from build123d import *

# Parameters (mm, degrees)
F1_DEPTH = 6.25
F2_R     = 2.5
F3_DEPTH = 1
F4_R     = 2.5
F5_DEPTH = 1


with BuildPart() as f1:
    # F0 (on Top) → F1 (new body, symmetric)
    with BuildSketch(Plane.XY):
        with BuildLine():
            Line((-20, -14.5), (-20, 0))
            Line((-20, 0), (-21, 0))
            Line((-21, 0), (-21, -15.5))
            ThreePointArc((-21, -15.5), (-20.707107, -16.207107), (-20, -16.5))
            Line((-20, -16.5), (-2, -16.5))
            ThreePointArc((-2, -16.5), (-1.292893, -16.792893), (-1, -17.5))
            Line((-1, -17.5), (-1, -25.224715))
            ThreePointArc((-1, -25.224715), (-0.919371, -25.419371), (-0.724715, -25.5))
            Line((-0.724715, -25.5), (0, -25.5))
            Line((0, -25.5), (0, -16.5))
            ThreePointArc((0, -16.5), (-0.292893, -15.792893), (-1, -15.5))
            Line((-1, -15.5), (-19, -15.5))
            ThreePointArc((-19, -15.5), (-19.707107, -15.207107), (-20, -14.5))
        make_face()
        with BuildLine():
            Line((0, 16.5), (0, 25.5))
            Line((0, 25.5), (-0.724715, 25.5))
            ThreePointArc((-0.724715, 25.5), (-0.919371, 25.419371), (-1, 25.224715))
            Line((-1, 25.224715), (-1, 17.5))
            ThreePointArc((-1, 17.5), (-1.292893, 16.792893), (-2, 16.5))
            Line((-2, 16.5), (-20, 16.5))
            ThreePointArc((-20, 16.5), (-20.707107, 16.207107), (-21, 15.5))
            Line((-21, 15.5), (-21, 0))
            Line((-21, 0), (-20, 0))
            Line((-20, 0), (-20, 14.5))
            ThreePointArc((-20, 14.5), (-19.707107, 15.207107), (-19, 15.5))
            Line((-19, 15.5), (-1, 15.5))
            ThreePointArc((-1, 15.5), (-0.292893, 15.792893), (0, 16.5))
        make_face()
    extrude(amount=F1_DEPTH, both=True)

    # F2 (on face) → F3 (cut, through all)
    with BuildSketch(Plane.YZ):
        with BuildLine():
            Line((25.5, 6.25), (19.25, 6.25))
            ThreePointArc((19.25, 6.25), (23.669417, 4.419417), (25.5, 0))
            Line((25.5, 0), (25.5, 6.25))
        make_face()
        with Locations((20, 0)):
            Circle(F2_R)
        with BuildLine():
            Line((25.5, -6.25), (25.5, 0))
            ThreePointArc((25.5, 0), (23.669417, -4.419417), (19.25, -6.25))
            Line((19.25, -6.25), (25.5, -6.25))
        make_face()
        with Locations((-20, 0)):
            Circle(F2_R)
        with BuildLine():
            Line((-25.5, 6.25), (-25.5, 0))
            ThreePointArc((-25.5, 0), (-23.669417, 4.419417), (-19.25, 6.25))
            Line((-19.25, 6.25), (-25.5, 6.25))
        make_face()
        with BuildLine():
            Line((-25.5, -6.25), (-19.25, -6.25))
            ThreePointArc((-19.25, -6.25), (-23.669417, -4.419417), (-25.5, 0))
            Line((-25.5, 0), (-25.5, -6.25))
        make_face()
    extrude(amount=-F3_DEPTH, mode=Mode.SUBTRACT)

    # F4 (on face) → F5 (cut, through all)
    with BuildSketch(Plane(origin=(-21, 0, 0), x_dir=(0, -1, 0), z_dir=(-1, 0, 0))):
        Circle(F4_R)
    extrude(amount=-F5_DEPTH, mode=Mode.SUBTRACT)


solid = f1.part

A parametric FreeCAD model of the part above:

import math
import FreeCAD as App
import Part
import Sketcher

V = App.Vector
Q = App.Units.Quantity

doc = App.newDocument("Part")
body = doc.addObject("PartDesign::Body", "Body")

# Sketch on XY plane
sketch1 = body.newObject("Sketcher::SketchObject", "Sketch")
sketch1.AttachmentSupport = (doc.getObject("XY_Plane"), [""])
sketch1.MapMode = "FlatFace"
sketch1.addGeometry(Part.LineSegment(V(-20, -14.5, 0), V(-20, 14.5, 0)), False)
sketch1.addGeometry(Part.ArcOfCircle(Part.Circle(V(-19, 14.5, 0), V(0, 0, 1), 1), math.radians(90), math.radians(180)), False)
sketch1.addGeometry(Part.LineSegment(V(-19, 15.5, 0), V(-1, 15.5, 0)), False)
sketch1.addGeometry(Part.ArcOfCircle(Part.Circle(V(-1, 16.5, 0), V(0, 0, 1), 1), math.radians(-90), math.radians(0)), False)
sketch1.addGeometry(Part.LineSegment(V(0, 16.5, 0), V(0, 25.5, 0)), False)
sketch1.addGeometry(Part.LineSegment(V(0, 25.5, 0), V(-0.72, 25.5, 0)), False)
sketch1.addGeometry(Part.ArcOfCircle(Part.Circle(V(-0.72, 25.22, 0), V(0, 0, 1), 0.28), math.radians(90), math.radians(180)), False)
sketch1.addGeometry(Part.LineSegment(V(-1, 25.22, 0), V(-1, 17.5, 0)), False)
sketch1.addGeometry(Part.ArcOfCircle(Part.Circle(V(-2, 17.5, 0), V(0, 0, 1), 1), math.radians(-90), math.radians(0)), False)
sketch1.addGeometry(Part.LineSegment(V(-2, 16.5, 0), V(-20, 16.5, 0)), False)
sketch1.addGeometry(Part.ArcOfCircle(Part.Circle(V(-20, 15.5, 0), V(0, 0, 1), 1), math.radians(90), math.radians(180)), False)
sketch1.addGeometry(Part.LineSegment(V(-21, 15.5, 0), V(-21, -15.5, 0)), False)
sketch1.addGeometry(Part.ArcOfCircle(Part.Circle(V(-20, -15.5, 0), V(0, 0, 1), 1), math.radians(180), math.radians(270)), False)
sketch1.addGeometry(Part.LineSegment(V(-20, -16.5, 0), V(-2, -16.5, 0)), False)
sketch1.addGeometry(Part.ArcOfCircle(Part.Circle(V(-2, -17.5, 0), V(0, 0, 1), 1), math.radians(0), math.radians(90)), False)
sketch1.addGeometry(Part.LineSegment(V(-1, -17.5, 0), V(-1, -25.22, 0)), False)
sketch1.addGeometry(Part.ArcOfCircle(Part.Circle(V(-0.72, -25.22, 0), V(0, 0, 1), 0.28), math.radians(180), math.radians(270)), False)
sketch1.addGeometry(Part.LineSegment(V(-0.72, -25.5, 0), V(0, -25.5, 0)), False)
sketch1.addGeometry(Part.LineSegment(V(0, -25.5, 0), V(0, -16.5, 0)), False)
sketch1.addGeometry(Part.ArcOfCircle(Part.Circle(V(-1, -16.5, 0), V(0, 0, 1), 1), math.radians(0), math.radians(90)), False)
sketch1.addGeometry(Part.LineSegment(V(-1, -15.5, 0), V(-19, -15.5, 0)), False)
sketch1.addGeometry(Part.ArcOfCircle(Part.Circle(V(-19, -14.5, 0), V(0, 0, 1), 1), math.radians(180), math.radians(270)), False)
sketch1.addConstraint(Sketcher.Constraint("Tangent", 0, 2, 1, 2))
sketch1.addConstraint(Sketcher.Constraint("Tangent", 1, 1, 2, 1))
sketch1.addConstraint(Sketcher.Constraint("Tangent", 2, 2, 3, 1))
sketch1.addConstraint(Sketcher.Constraint("Tangent", 3, 2, 4, 1))
sketch1.addConstraint(Sketcher.Constraint("Coincident", 4, 2, 5, 1))
sketch1.addConstraint(Sketcher.Constraint("Tangent", 5, 2, 6, 1))
sketch1.addConstraint(Sketcher.Constraint("Tangent", 6, 2, 7, 1))
sketch1.addConstraint(Sketcher.Constraint("Tangent", 7, 2, 8, 2))
sketch1.addConstraint(Sketcher.Constraint("Tangent", 8, 1, 9, 1))
sketch1.addConstraint(Sketcher.Constraint("Tangent", 9, 2, 10, 1))
sketch1.addConstraint(Sketcher.Constraint("Tangent", 10, 2, 11, 1))
sketch1.addConstraint(Sketcher.Constraint("Tangent", 11, 2, 12, 1))
sketch1.addConstraint(Sketcher.Constraint("Tangent", 12, 2, 13, 1))
sketch1.addConstraint(Sketcher.Constraint("Tangent", 13, 2, 14, 2))
sketch1.addConstraint(Sketcher.Constraint("Tangent", 14, 1, 15, 1))
sketch1.addConstraint(Sketcher.Constraint("Tangent", 15, 2, 16, 1))
sketch1.addConstraint(Sketcher.Constraint("Tangent", 16, 2, 17, 1))
sketch1.addConstraint(Sketcher.Constraint("Coincident", 17, 2, 18, 1))
sketch1.addConstraint(Sketcher.Constraint("Tangent", 18, 2, 19, 1))
sketch1.addConstraint(Sketcher.Constraint("Tangent", 19, 2, 20, 1))
sketch1.addConstraint(Sketcher.Constraint("Tangent", 20, 2, 21, 2))
sketch1.addConstraint(Sketcher.Constraint("Tangent", 21, 1, 0, 1))
sketch1.addConstraint(Sketcher.Constraint("Vertical", 0))
sketch1.addConstraint(Sketcher.Constraint("Horizontal", 2))
sketch1.addConstraint(Sketcher.Constraint("Vertical", 4))
sketch1.addConstraint(Sketcher.Constraint("Horizontal", 5))
sketch1.addConstraint(Sketcher.Constraint("Vertical", 7))
sketch1.addConstraint(Sketcher.Constraint("Horizontal", 9))
sketch1.addConstraint(Sketcher.Constraint("Vertical", 11))
sketch1.addConstraint(Sketcher.Constraint("Horizontal", 13))
sketch1.addConstraint(Sketcher.Constraint("Vertical", 15))
sketch1.addConstraint(Sketcher.Constraint("Horizontal", 17))
sketch1.addConstraint(Sketcher.Constraint("Vertical", 18))
sketch1.addConstraint(Sketcher.Constraint("Horizontal", 20))
sketch1.addConstraint(Sketcher.Constraint("Equal", 1, 3))
sketch1.addConstraint(Sketcher.Constraint("Equal", 3, 8))
sketch1.addConstraint(Sketcher.Constraint("Equal", 8, 10))
sketch1.addConstraint(Sketcher.Constraint("Equal", 10, 12))
sketch1.addConstraint(Sketcher.Constraint("Equal", 12, 14))
sketch1.addConstraint(Sketcher.Constraint("Equal", 6, 16))
sketch1.addConstraint(Sketcher.Constraint("Equal", 14, 19))
sketch1.addConstraint(Sketcher.Constraint("Equal", 19, 21))
sketch1.addConstraint(Sketcher.Constraint("Symmetric", 4, 2, 17, 2, -1, 1))
sketch1.addConstraint(Sketcher.Constraint("Symmetric", 8, 3, 14, 3, -1))
sketch1.addConstraint(Sketcher.Constraint("Symmetric", 3, 3, 19, 3, -1))
sketch1.addConstraint(Sketcher.Constraint("Horizontal", 10, 3, 1, 1))
sketch1.addConstraint(Sketcher.Constraint("Vertical", 12, 3, 0, 2))
sketch1.addConstraint(Sketcher.Constraint("Vertical", 2, 2, 6, 2))
sketch1.addConstraint(Sketcher.Constraint("Radius", 1, Q("0.999999 mm")))
sketch1.addConstraint(Sketcher.Constraint("DistanceX", 2, 1, 2, 2, Q("18 mm")))
sketch1.addConstraint(Sketcher.Constraint("DistanceY", 0, 1, 0, 2, Q("29 mm")))
sketch1.addConstraint(Sketcher.Constraint("DistanceY", 4, 1, 4, 2, Q("9 mm")))
sketch1.addConstraint(Sketcher.Constraint("Radius", 6, Q("0.275285 mm")))
pad1 = body.newObject("PartDesign::Pad", "Pad")
pad1.Profile = sketch1
pad1.Length = 12.5
pad1.Midplane = True

# Sketch on YZ plane
sketch2 = body.newObject("Sketcher::SketchObject", "Sketch001")
sketch2.AttachmentSupport = (doc.getObject("YZ_Plane"), [""])
sketch2.MapMode = "FlatFace"
sketch2.addGeometry(Part.LineSegment(V(25.5, 6.2, 0), V(19.2, 6.2, 0)), False)
sketch2.addGeometry(Part.ArcOfCircle(Part.Circle(V(19.2, 0, 0), V(0, 0, 1), 6.3), math.radians(0), math.radians(90)), False)
sketch2.addGeometry(Part.LineSegment(V(25.5, 0, 0), V(25.5, 6.2, 0)), False)
sketch2.addGeometry(Part.Circle(V(20, 0, 0), V(0, 0, 1), 2.5), False)
sketch2.addGeometry(Part.LineSegment(V(25.5, -6.2, 0), V(25.5, 0, 0)), False)
sketch2.addGeometry(Part.ArcOfCircle(Part.Circle(V(19.2, 0, 0), V(0, 0, 1), 6.3), math.radians(-90), math.radians(0)), False)
sketch2.addGeometry(Part.LineSegment(V(19.2, -6.2, 0), V(25.5, -6.2, 0)), False)
sketch2.addGeometry(Part.Circle(V(-20, 0, 0), V(0, 0, 1), 2.5), False)
sketch2.addGeometry(Part.LineSegment(V(-25.5, 6.2, 0), V(-25.5, 0, 0)), False)
sketch2.addGeometry(Part.ArcOfCircle(Part.Circle(V(-19.2, 0, 0), V(0, 0, 1), 6.3), math.radians(90), math.radians(180)), False)
sketch2.addGeometry(Part.LineSegment(V(-19.2, 6.2, 0), V(-25.5, 6.2, 0)), False)
sketch2.addGeometry(Part.LineSegment(V(-25.5, -6.2, 0), V(-19.2, -6.2, 0)), False)
sketch2.addGeometry(Part.ArcOfCircle(Part.Circle(V(-19.2, 0, 0), V(0, 0, 1), 6.3), math.radians(-180), math.radians(-90)), False)
sketch2.addGeometry(Part.LineSegment(V(-25.5, 0, 0), V(-25.5, -6.2, 0)), False)
sketch2.addConstraint(Sketcher.Constraint("Tangent", 0, 2, 1, 2))
sketch2.addConstraint(Sketcher.Constraint("Tangent", 1, 1, 2, 1))
sketch2.addConstraint(Sketcher.Constraint("Coincident", 2, 2, 0, 1))
sketch2.addConstraint(Sketcher.Constraint("Tangent", 4, 2, 5, 2))
sketch2.addConstraint(Sketcher.Constraint("Tangent", 5, 1, 6, 1))
sketch2.addConstraint(Sketcher.Constraint("Coincident", 6, 2, 4, 1))
sketch2.addConstraint(Sketcher.Constraint("Tangent", 8, 2, 9, 2))
sketch2.addConstraint(Sketcher.Constraint("Tangent", 9, 1, 10, 1))
sketch2.addConstraint(Sketcher.Constraint("Coincident", 10, 2, 8, 1))
sketch2.addConstraint(Sketcher.Constraint("Tangent", 11, 2, 12, 2))
sketch2.addConstraint(Sketcher.Constraint("Tangent", 12, 1, 13, 1))
sketch2.addConstraint(Sketcher.Constraint("Coincident", 13, 2, 11, 1))
sketch2.addConstraint(Sketcher.Constraint("Horizontal", 0))
sketch2.addConstraint(Sketcher.Constraint("Vertical", 2))
sketch2.addConstraint(Sketcher.Constraint("Vertical", 4))
sketch2.addConstraint(Sketcher.Constraint("Horizontal", 6))
sketch2.addConstraint(Sketcher.Constraint("Vertical", 8))
sketch2.addConstraint(Sketcher.Constraint("Horizontal", 10))
sketch2.addConstraint(Sketcher.Constraint("Horizontal", 11))
sketch2.addConstraint(Sketcher.Constraint("Vertical", 13))
sketch2.addConstraint(Sketcher.Constraint("Coincident", 5, 3, 1, 3))
sketch2.addConstraint(Sketcher.Constraint("Coincident", 12, 3, 9, 3))
sketch2.addConstraint(Sketcher.Constraint("Equal", 1, 5))
sketch2.addConstraint(Sketcher.Constraint("Equal", 3, 7))
sketch2.addConstraint(Sketcher.Constraint("Equal", 5, 9))
sketch2.addConstraint(Sketcher.Constraint("Equal", 9, 12))
sketch2.addConstraint(Sketcher.Constraint("Symmetric", 3, 3, 7, 3, -1, 1))
sketch2.addConstraint(Sketcher.Constraint("Symmetric", 1, 3, 9, 3, -1, 1))
sketch2.addConstraint(Sketcher.Constraint("PointOnObject", 1, 3, -1))
sketch2.addConstraint(Sketcher.Constraint("PointOnObject", 3, 3, -1))
sketch2.addConstraint(Sketcher.Constraint("Diameter", 3, Q("5 mm")))
sketch2.addConstraint(Sketcher.Constraint("Radius", 1, Q("6.250001 mm")))
sketch2.addConstraint(Sketcher.Constraint("DistanceX", -1, 1, 3, 3, Q("20 mm")))
sketch2.addConstraint(Sketcher.Constraint("DistanceX", -1, 1, 1, 1, Q("25.5 mm")))
pocket1 = body.newObject("PartDesign::Pocket", "Pocket")
pocket1.Profile = sketch2
pocket1.Type = "ThroughAll"

# Sketch on YZ plane
sketch3 = body.newObject("Sketcher::SketchObject", "Sketch002")
sketch3.AttachmentSupport = (doc.getObject("YZ_Plane"), [""])
sketch3.MapMode = "FlatFace"
sketch3.AttachmentOffset = App.Placement(V(0, 0, -21), App.Rotation())
sketch3.addGeometry(Part.Circle(V(0, 0, 0), V(0, 0, 1), 2.5), False)
sketch3.addConstraint(Sketcher.Constraint("Coincident", 0, 3, -1, 1))
sketch3.addConstraint(Sketcher.Constraint("Diameter", 0, Q("5 mm")))
pocket2 = body.newObject("PartDesign::Pocket", "Pocket001")
pocket2.Profile = sketch3
pocket2.Type = "ThroughAll"
pocket2.Reversed = True

doc.recompute()
